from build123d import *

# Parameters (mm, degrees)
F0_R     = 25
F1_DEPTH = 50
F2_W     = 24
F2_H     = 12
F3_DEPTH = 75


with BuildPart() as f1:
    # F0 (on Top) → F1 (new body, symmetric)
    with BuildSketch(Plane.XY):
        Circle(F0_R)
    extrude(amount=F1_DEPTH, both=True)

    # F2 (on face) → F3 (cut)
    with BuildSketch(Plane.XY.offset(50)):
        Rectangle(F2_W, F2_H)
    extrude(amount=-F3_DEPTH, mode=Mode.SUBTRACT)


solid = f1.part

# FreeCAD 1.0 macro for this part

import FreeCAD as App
import Part
import Sketcher
from FreeCAD import Vector


def add_polygon(sketch, points):
    """Adds a closed chain of lines whose ends are joined by coincident constraints."""
    first, n = sketch.GeometryCount, len(points)
    for a, b in zip(points, points[1:] + points[:1]):
        sketch.addGeometry(Part.LineSegment(App.Vector(*a, 0), App.Vector(*b, 0)), False)
    for i in range(n):
        sketch.addConstraint(Sketcher.Constraint("Coincident", first + i, 2, first + (i + 1) % n, 1))

doc = App.newDocument("Part")
body = doc.addObject("PartDesign::Body", "Body")

# Sketch on XY plane
sketch1 = body.newObject("Sketcher::SketchObject", "Sketch")
sketch1.AttachmentSupport = (doc.getObject("XY_Plane"), [""])
sketch1.MapMode = "FlatFace"
sketch1.addGeometry(Part.Circle(Vector(0, 0, 0), Vector(0, 0, 1), 25), False)
sketch1.addConstraint([
    Sketcher.Constraint("Coincident", 0, 3, -1, 1),
    Sketcher.Constraint("Diameter", 0, 50.0),
])
pad1 = body.newObject("PartDesign::Pad", "Pad")
pad1.Profile = sketch1
pad1.Length = 100
pad1.Midplane = True

# Sketch on XY plane
sketch2 = body.newObject("Sketcher::SketchObject", "Sketch001")
sketch2.AttachmentSupport = (doc.getObject("XY_Plane"), [""])
sketch2.MapMode = "FlatFace"
sketch2.AttachmentOffset = App.Placement(Vector(0, 0, 50), App.Rotation())
add_polygon(sketch2, [(-12, 6), (-12, -6), (12, -6), (12, 6)])  # lines 0-3
sketch2.addConstraint([
    Sketcher.Constraint("Vertical", 0),
    Sketcher.Constraint("Horizontal", 1),
    Sketcher.Constraint("Vertical", 2),
    Sketcher.Constraint("Horizontal", 3),
    Sketcher.Constraint("Symmetric", 0, 2, 2, 2, -1, 1),
    Sketcher.Constraint("DistanceX", 1, 1, 1, 2, 24.0),
    Sketcher.Constraint("DistanceY", 0, 2, 0, 1, 12.0),
])
pocket1 = body.newObject("PartDesign::Pocket", "Pocket")
pocket1.Profile = sketch2
pocket1.Length = 75

doc.recompute()
